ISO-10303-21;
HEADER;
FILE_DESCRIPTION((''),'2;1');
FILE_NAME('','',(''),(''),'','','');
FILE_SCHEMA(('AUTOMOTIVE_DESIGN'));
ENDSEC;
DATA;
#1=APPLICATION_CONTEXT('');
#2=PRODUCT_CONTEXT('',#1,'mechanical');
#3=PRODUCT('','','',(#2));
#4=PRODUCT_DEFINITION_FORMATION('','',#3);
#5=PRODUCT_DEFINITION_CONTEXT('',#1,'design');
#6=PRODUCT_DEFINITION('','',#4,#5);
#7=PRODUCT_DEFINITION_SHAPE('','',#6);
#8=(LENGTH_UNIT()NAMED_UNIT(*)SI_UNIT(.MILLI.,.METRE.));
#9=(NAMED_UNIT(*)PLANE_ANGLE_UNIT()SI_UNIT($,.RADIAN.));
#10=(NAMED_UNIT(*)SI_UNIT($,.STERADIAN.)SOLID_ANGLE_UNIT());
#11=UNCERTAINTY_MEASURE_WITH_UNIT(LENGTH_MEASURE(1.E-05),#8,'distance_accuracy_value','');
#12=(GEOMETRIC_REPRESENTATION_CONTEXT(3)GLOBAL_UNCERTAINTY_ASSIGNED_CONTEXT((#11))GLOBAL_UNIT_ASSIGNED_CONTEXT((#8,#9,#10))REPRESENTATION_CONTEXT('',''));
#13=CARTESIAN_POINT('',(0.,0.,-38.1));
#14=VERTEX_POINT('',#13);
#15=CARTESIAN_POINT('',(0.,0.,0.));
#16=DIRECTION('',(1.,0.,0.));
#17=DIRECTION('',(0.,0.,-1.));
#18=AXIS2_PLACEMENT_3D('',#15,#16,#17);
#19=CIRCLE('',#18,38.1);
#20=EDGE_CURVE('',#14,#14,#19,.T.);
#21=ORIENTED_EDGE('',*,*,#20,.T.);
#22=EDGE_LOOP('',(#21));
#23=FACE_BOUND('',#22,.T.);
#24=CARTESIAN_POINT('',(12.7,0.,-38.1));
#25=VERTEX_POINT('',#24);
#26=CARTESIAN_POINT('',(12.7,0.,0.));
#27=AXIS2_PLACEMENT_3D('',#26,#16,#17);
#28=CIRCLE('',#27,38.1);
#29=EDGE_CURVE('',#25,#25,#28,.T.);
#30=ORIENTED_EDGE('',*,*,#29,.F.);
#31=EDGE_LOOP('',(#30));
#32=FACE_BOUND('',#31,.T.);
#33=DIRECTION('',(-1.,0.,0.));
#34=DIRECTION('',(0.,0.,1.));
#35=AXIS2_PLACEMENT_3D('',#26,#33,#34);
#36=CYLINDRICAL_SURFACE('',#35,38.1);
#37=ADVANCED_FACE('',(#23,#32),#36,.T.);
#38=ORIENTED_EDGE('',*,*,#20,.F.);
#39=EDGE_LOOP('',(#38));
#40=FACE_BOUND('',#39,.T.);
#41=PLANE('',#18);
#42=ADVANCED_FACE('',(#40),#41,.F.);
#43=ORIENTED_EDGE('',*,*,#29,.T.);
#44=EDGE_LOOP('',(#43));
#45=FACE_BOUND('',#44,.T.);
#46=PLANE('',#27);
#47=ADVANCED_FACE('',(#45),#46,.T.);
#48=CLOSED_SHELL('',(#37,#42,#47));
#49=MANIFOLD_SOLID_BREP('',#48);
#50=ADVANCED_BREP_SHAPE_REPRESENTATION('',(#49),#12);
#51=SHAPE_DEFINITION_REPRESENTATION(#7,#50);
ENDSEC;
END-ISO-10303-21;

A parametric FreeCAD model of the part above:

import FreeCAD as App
import Part
import Sketcher
Q = App.Units.Quantity

doc = App.newDocument("Part")
body = doc.addObject("PartDesign::Body", "Body")

# Sketch on YZ plane
sketch1 = body.newObject("Sketcher::SketchObject", "Sketch")
sketch1.AttachmentSupport = (doc.getObject("YZ_Plane"), [""])
sketch1.MapMode = "FlatFace"
sketch1.addGeometry(Part.Circle(App.Vector(0, 0, 0), App.Vector(0, 0, 1), 38), False)
sketch1.addConstraint(Sketcher.Constraint("Coincident", 0, 3, -1, 1))
sketch1.addConstraint(Sketcher.Constraint("Diameter", 0, Q("3 in")))
pad1 = body.newObject("PartDesign::Pad", "Pad")
pad1.Profile = sketch1
pad1.Length = Q("0.5 in")

doc.recompute()
